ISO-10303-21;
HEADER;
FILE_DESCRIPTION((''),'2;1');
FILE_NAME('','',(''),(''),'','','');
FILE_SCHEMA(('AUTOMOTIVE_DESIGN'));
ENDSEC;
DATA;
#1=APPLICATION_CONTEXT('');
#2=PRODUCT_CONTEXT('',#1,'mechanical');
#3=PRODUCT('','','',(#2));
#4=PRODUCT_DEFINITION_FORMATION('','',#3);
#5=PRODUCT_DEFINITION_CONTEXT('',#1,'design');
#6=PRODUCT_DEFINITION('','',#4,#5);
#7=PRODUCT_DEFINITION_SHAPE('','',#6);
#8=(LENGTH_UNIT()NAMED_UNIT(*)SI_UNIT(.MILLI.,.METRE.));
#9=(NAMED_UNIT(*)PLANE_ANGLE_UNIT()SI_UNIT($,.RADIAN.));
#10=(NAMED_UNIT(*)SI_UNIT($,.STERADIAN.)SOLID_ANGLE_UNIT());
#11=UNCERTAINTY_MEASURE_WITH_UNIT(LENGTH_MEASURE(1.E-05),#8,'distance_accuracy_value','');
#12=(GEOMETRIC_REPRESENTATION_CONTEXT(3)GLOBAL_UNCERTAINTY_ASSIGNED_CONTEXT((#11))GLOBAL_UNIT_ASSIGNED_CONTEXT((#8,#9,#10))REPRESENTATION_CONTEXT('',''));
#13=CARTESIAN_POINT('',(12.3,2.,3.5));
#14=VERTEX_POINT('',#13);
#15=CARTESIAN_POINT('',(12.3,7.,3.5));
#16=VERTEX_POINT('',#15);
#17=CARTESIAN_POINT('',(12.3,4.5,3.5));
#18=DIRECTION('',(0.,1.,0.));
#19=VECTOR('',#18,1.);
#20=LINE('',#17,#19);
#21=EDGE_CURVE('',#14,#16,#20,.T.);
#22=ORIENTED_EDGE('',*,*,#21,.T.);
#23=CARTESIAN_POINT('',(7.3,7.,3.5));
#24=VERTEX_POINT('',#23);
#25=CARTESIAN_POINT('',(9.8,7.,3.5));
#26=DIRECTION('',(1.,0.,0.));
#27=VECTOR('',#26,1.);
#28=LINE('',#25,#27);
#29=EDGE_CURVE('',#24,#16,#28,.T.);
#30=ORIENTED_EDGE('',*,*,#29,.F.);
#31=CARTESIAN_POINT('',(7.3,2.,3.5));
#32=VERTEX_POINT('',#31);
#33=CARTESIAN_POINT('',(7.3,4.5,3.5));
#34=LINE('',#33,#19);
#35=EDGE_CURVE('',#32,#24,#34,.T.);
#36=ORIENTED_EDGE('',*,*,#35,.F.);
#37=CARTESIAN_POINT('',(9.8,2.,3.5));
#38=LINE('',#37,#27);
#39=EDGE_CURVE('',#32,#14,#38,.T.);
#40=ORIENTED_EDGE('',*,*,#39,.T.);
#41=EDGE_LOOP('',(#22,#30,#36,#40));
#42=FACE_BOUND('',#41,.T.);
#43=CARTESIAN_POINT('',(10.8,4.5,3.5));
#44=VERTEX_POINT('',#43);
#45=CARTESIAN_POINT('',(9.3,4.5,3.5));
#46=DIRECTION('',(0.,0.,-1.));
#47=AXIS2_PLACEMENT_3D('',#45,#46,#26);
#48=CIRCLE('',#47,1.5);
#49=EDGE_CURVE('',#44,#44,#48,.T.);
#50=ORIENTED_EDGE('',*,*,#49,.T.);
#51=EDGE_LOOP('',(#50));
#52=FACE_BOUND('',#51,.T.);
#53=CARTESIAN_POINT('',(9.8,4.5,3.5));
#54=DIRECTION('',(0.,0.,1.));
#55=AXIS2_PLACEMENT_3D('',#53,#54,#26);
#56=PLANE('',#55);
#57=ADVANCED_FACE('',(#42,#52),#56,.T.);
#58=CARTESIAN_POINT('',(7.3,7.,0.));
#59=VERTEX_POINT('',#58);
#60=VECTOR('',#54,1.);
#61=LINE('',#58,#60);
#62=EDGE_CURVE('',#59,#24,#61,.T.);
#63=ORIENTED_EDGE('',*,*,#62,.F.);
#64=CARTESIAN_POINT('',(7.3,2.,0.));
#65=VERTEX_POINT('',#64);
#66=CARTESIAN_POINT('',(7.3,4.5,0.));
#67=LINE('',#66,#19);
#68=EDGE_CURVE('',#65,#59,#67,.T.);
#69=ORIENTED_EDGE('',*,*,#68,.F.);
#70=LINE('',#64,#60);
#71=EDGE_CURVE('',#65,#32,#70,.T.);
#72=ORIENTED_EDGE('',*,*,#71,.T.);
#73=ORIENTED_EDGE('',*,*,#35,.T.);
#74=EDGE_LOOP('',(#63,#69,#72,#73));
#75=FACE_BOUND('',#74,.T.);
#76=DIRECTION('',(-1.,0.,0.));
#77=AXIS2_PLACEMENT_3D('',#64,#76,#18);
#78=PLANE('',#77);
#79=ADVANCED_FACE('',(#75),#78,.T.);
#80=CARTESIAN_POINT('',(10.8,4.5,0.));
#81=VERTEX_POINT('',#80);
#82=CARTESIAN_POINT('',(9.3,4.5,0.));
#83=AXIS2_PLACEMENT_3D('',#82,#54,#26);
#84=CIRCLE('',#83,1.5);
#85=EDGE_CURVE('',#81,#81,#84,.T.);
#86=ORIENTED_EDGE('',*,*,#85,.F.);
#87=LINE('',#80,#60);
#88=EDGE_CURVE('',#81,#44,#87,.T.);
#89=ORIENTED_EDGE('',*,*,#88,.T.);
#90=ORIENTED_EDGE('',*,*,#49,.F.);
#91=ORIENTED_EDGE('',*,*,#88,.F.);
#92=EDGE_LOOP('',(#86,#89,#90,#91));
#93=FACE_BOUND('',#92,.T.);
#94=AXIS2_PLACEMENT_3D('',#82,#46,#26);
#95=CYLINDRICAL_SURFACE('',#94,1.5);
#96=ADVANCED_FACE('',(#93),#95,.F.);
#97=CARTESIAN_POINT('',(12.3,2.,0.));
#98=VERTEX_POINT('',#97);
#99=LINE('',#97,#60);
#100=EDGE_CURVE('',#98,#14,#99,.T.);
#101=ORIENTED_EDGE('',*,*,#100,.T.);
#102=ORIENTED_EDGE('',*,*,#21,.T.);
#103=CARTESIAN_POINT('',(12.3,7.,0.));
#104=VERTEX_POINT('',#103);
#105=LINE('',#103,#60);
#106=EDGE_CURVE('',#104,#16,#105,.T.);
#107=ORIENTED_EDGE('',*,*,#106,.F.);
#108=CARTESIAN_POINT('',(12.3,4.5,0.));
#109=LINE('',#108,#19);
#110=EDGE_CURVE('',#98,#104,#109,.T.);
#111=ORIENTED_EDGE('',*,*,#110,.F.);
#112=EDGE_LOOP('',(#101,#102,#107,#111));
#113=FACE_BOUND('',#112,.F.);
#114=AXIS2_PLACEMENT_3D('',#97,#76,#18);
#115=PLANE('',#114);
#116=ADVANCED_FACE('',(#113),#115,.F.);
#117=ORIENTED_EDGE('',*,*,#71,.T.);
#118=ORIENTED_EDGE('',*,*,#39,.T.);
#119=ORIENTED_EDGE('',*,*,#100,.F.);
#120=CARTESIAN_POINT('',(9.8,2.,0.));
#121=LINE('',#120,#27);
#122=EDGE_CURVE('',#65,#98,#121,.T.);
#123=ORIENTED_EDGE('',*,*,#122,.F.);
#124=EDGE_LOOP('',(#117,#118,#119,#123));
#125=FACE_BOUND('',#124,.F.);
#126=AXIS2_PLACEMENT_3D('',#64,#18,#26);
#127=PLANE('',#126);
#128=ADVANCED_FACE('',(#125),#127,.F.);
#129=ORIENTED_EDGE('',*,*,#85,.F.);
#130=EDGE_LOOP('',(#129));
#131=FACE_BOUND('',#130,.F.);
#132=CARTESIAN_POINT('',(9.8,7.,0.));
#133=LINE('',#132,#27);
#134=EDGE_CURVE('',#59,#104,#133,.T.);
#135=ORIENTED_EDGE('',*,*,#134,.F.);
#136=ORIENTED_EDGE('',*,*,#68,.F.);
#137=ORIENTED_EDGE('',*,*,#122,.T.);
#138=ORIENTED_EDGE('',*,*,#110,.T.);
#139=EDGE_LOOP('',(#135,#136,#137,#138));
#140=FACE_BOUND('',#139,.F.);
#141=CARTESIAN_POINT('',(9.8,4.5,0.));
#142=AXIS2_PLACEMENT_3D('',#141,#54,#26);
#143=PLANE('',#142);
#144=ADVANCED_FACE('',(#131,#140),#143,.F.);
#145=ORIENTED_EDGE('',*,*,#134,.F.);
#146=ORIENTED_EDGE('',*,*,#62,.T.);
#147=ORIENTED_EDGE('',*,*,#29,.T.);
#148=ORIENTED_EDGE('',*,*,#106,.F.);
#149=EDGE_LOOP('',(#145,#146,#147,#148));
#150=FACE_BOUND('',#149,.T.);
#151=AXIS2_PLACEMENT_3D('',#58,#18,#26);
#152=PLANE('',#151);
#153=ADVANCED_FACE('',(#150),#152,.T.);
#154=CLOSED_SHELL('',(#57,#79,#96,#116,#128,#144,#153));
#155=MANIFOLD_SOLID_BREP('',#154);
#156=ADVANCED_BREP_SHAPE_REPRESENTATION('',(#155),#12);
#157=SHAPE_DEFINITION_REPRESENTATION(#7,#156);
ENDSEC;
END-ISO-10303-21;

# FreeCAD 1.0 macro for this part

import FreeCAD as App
import Part
import Sketcher
from FreeCAD import Vector
Q = App.Units.Quantity

doc = App.newDocument("Part")
params = doc.addObject("Spreadsheet::Sheet", "Params")
for row, (alias, value) in enumerate([
    ("sketch1_diameter", "3 mm"),
    ("pad1_length", "10 mm"),
    ("sketch2_width", "5 mm"),
    ("pad2_length", "3.5 mm"),
], start=1):
    params.set(f"A{row}", alias)
    params.set(f"B{row}", "=" + value)
    params.setAlias(f"B{row}", alias)

body = doc.addObject("PartDesign::Body", "Body")

# Sketch on XY plane
sketch1 = doc.addObject("Sketcher::SketchObject", "Sketch")
body.addObject(sketch1)
sketch1.AttachmentSupport = (doc.XY_Plane, [""])
sketch1.MapMode = "FlatFace"
sketch1.addGeometry(Part.Circle(Vector(9.3, 4.5, 0), Vector(0, 0, 1), 1.5), False)
sketch1.addConstraint([
    Sketcher.Constraint("Diameter", 0, Q("3 mm")),
    Sketcher.Constraint("DistanceX", -1, 1, 0, 3, Q("9.3 mm")),
    Sketcher.Constraint("DistanceY", -1, 1, 0, 3, Q("4.5 mm")),
])
sketch1.setExpression("Constraints[0]", "Params.sketch1_diameter")
pad1 = doc.addObject("PartDesign::Pad", "Pad")
body.addObject(pad1)
pad1.Profile = sketch1
pad1.setExpression("Length", "Params.pad1_length")
body2 = doc.addObject("PartDesign::Body", "Body001")

# Sketch on XY plane
sketch2 = doc.addObject("Sketcher::SketchObject", "Sketch001")
body2.addObject(sketch2)
sketch2.AttachmentSupport = (doc.getObject("XY_Plane001"), [""])
sketch2.MapMode = "FlatFace"
sketch2.addGeometry([
    Part.LineSegment(Vector(7.3, 7, 0), Vector(7.3, 2, 0)),
    Part.LineSegment(Vector(7.3, 2, 0), Vector(12.3, 2, 0)),
    Part.LineSegment(Vector(12.3, 2, 0), Vector(12.3, 7, 0)),
    Part.LineSegment(Vector(12.3, 7, 0), Vector(7.3, 7, 0)),
], False)
sketch2.addConstraint([
    Sketcher.Constraint("Coincident", 0, 2, 1, 1),
    Sketcher.Constraint("Coincident", 1, 2, 2, 1),
    Sketcher.Constraint("Coincident", 2, 2, 3, 1),
    Sketcher.Constraint("Coincident", 3, 2, 0, 1),
    Sketcher.Constraint("Vertical", 0),
    Sketcher.Constraint("Horizontal", 1),
    Sketcher.Constraint("Vertical", 2),
    Sketcher.Constraint("Horizontal", 3),
    Sketcher.Constraint("Equal", 3, 0),
    Sketcher.Constraint("DistanceX", 1, 1, 1, 2, Q("5 mm")),
    Sketcher.Constraint("DistanceY", -1, 1, 0, 2, Q("2 mm")),
    Sketcher.Constraint("DistanceX", -1, 1, 0, 2, Q("7.3 mm")),
])
sketch2.setExpression("Constraints[9]", "Params.sketch2_width")
pad2 = doc.addObject("PartDesign::Pad", "Pad001")
body2.addObject(pad2)
pad2.Profile = sketch2
pad2.setExpression("Length", "Params.pad2_length")
doc.recompute()

boolean = doc.addObject("PartDesign::Boolean", "Boolean")
body2.addObject(boolean)
boolean.Type = "Cut"
boolean.addObjects([body])

doc.recompute()
